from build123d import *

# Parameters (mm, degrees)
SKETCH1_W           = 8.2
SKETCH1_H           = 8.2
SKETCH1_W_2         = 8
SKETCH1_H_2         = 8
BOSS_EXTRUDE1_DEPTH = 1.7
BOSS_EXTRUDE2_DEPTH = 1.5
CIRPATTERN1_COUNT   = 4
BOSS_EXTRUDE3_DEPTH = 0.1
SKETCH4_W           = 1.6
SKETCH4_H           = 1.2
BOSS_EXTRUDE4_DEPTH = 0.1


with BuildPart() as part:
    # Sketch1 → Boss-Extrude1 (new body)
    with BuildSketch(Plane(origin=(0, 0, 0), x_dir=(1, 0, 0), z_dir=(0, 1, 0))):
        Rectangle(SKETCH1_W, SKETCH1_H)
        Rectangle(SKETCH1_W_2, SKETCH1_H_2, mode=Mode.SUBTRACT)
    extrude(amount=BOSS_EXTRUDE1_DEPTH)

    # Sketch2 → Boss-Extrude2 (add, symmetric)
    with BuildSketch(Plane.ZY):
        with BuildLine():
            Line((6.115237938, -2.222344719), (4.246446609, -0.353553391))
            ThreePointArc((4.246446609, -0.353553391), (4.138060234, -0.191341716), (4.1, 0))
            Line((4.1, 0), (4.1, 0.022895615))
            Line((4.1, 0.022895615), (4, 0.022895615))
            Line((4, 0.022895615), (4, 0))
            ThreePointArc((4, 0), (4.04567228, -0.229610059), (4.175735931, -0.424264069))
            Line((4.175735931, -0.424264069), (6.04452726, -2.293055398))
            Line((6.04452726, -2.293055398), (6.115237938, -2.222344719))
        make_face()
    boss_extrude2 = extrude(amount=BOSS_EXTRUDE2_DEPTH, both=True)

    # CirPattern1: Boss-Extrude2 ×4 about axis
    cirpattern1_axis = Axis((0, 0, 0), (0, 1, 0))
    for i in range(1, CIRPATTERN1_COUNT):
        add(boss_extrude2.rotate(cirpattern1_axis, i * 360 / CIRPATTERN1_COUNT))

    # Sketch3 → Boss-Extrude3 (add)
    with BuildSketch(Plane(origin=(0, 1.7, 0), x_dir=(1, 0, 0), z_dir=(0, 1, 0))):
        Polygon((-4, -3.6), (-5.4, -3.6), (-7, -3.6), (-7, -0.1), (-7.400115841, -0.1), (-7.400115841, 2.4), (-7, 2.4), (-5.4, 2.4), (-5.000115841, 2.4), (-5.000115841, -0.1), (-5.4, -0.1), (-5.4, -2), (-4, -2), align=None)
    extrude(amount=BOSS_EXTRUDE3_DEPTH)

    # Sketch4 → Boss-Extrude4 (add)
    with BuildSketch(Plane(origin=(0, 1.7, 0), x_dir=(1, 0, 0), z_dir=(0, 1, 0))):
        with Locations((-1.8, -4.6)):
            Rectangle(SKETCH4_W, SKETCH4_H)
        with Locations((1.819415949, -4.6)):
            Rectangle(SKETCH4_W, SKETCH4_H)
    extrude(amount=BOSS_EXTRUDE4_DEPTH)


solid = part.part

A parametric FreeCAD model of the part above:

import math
import FreeCAD as App
import Part
import Sketcher

V = App.Vector
Q = App.Units.Quantity

doc = App.newDocument("Part")
body = doc.addObject("PartDesign::Body", "Body")

sketch1 = body.newObject("Sketcher::SketchObject", "Sketch")
sketch1.AttachmentSupport = (doc.getObject("XZ_Plane"), [""])
sketch1.MapMode = "FlatFace"
sketch1.addGeometry(Part.LineSegment(V(-4, -4, 0), V(-4, 4, 0)), False)
sketch1.addGeometry(Part.LineSegment(V(-4, 4, 0), V(4, 4, 0)), False)
sketch1.addGeometry(Part.LineSegment(V(4, 4, 0), V(4, -4, 0)), False)
sketch1.addGeometry(Part.LineSegment(V(4, -4, 0), V(-4, -4, 0)), False)
sketch1.addGeometry(Part.LineSegment(V(4, 4, 0), V(-4, 4, 0)), False)
sketch1.addGeometry(Part.LineSegment(V(-4, 4, 0), V(-4, -4, 0)), False)
sketch1.addGeometry(Part.LineSegment(V(-4, -4, 0), V(4, -4, 0)), False)
sketch1.addGeometry(Part.LineSegment(V(4, -4, 0), V(4, 4, 0)), False)
sketch1.addConstraint(Sketcher.Constraint("Coincident", 0, 2, 1, 1))
sketch1.addConstraint(Sketcher.Constraint("Coincident", 1, 2, 2, 1))
sketch1.addConstraint(Sketcher.Constraint("Coincident", 2, 2, 3, 1))
sketch1.addConstraint(Sketcher.Constraint("Coincident", 3, 2, 0, 1))
sketch1.addConstraint(Sketcher.Constraint("Coincident", 4, 2, 5, 1))
sketch1.addConstraint(Sketcher.Constraint("Coincident", 5, 2, 6, 1))
sketch1.addConstraint(Sketcher.Constraint("Coincident", 6, 2, 7, 1))
sketch1.addConstraint(Sketcher.Constraint("Coincident", 7, 2, 4, 1))
sketch1.addConstraint(Sketcher.Constraint("Vertical", 0))
sketch1.addConstraint(Sketcher.Constraint("Horizontal", 1))
sketch1.addConstraint(Sketcher.Constraint("Vertical", 2))
sketch1.addConstraint(Sketcher.Constraint("Horizontal", 3))
sketch1.addConstraint(Sketcher.Constraint("Horizontal", 4))
sketch1.addConstraint(Sketcher.Constraint("Vertical", 5))
sketch1.addConstraint(Sketcher.Constraint("Horizontal", 6))
sketch1.addConstraint(Sketcher.Constraint("Vertical", 7))
sketch1.addConstraint(Sketcher.Constraint("Symmetric", 0, 2, 2, 2, -1, 1))
sketch1.addConstraint(Sketcher.Constraint("Symmetric", 4, 2, 6, 2, -1, 1))
sketch1.addConstraint(Sketcher.Constraint("Equal", 3, 0))
sketch1.addConstraint(Sketcher.Constraint("Equal", 6, 5))
sketch1.addConstraint(Sketcher.Constraint("DistanceX", 4, 2, 4, 1, Q("8 mm")))
sketch1.addConstraint(Sketcher.Constraint("DistanceX", 1, 1, 1, 2, Q("8.2 mm")))
pad1 = body.newObject("PartDesign::Pad", "Pad")
pad1.Profile = sketch1
pad1.Length = 1.7
pad1.Reversed = True

sketch2 = body.newObject("Sketcher::SketchObject", "Sketch001")
sketch2.AttachmentSupport = (doc.getObject("YZ_Plane"), [""])
sketch2.MapMode = "FlatFace"
sketch2.addGeometry(Part.LineSegment(V(-2.222, 6.115, 0), V(-0.354, 4.246, 0)), False)
sketch2.addGeometry(Part.ArcOfCircle(Part.Circle(V(0, 4.6, 0), V(0, 0, 1), 0.5), math.radians(-135), math.radians(-90)), False)
sketch2.addGeometry(Part.LineSegment(V(0, 4.1, 0), V(0.023, 4.1, 0)), False)
sketch2.addGeometry(Part.LineSegment(V(0.023, 4.1, 0), V(0.023, 4, 0)), False)
sketch2.addGeometry(Part.LineSegment(V(0.023, 4, 0), V(0, 4, 0)), False)
sketch2.addGeometry(Part.ArcOfCircle(Part.Circle(V(0, 4.6, 0), V(0, 0, 1), 0.6), math.radians(-135), math.radians(-90)), False)
sketch2.addGeometry(Part.LineSegment(V(-0.424, 4.176, 0), V(-2.293, 6.045, 0)), False)
sketch2.addGeometry(Part.LineSegment(V(-2.293, 6.045, 0), V(-2.222, 6.115, 0)), False)
sketch2.addConstraint(Sketcher.Constraint("Tangent", 0, 2, 1, 1))
sketch2.addConstraint(Sketcher.Constraint("Tangent", 1, 2, 2, 1))
sketch2.addConstraint(Sketcher.Constraint("Coincident", 2, 2, 3, 1))
sketch2.addConstraint(Sketcher.Constraint("Coincident", 3, 2, 4, 1))
sketch2.addConstraint(Sketcher.Constraint("Tangent", 4, 2, 5, 2))
sketch2.addConstraint(Sketcher.Constraint("Tangent", 5, 1, 6, 1))
sketch2.addConstraint(Sketcher.Constraint("Coincident", 6, 2, 7, 1))
sketch2.addConstraint(Sketcher.Constraint("Coincident", 7, 2, 0, 1))
sketch2.addConstraint(Sketcher.Constraint("Horizontal", 2))
sketch2.addConstraint(Sketcher.Constraint("Vertical", 3))
sketch2.addConstraint(Sketcher.Constraint("Horizontal", 4))
sketch2.addConstraint(Sketcher.Constraint("Coincident", 5, 3, 1, 3))
sketch2.addConstraint(Sketcher.Constraint("PointOnObject", 1, 3, -2))
sketch2.addConstraint(Sketcher.Constraint("Parallel", 0, 6))
sketch2.addConstraint(Sketcher.Constraint("Perpendicular", 6, 7))
sketch2.addConstraint(Sketcher.Constraint("Radius", 1, Q("0.5 mm")))
sketch2.addConstraint(Sketcher.Constraint("Radius", 5, Q("0.6 mm")))
sketch2.addConstraint(Sketcher.Constraint("Angle", 0, Q("-45 deg")))
sketch2.addConstraint(Sketcher.Constraint("DistanceY", -1, 1, 3, 2, Q("4 mm")))
sketch2.addConstraint(Sketcher.Constraint("Distance", 0, Q("2.64287 mm")))
sketch2.addConstraint(Sketcher.Constraint("DistanceX", 2, 1, 2, 2, Q("0.022896 mm")))
pad2 = body.newObject("PartDesign::Pad", "Pad001")
pad2.Profile = sketch2
pad2.Length = 3
pad2.Midplane = True
doc.recompute()

polarpattern = body.newObject("PartDesign::PolarPattern", "PolarPattern")
polarpattern.Originals = [pad2]
polarpattern.Axis = (doc.getObject("Y_Axis"), [""])
polarpattern.Angle = 360
polarpattern.Occurrences = 4
body.Tip = polarpattern

sketch3 = body.newObject("Sketcher::SketchObject", "Sketch002")
sketch3.AttachmentSupport = (doc.getObject("XZ_Plane"), [""])
sketch3.MapMode = "FlatFace"
sketch3.AttachmentOffset = App.Placement(V(0, 0, -1.7), App.Rotation())
sketch3.addGeometry(Part.LineSegment(V(-7, 3.6, 0), V(-4, 3.6, 0)), False)
sketch3.addGeometry(Part.LineSegment(V(-4, 3.6, 0), V(-4, 2, 0)), False)
sketch3.addGeometry(Part.LineSegment(V(-4, 2, 0), V(-5.4, 2, 0)), False)
sketch3.addGeometry(Part.LineSegment(V(-5.4, 2, 0), V(-5.4, 0.1, 0)), False)
sketch3.addGeometry(Part.LineSegment(V(-5.4, 0.1, 0), V(-5, 0.1, 0)), False)
sketch3.addGeometry(Part.LineSegment(V(-5, 0.1, 0), V(-5, -2.4, 0)), False)
sketch3.addGeometry(Part.LineSegment(V(-5, -2.4, 0), V(-7.4, -2.4, 0)), False)
sketch3.addGeometry(Part.LineSegment(V(-7.4, -2.4, 0), V(-7.4, 0.1, 0)), False)
sketch3.addGeometry(Part.LineSegment(V(-7.4, 0.1, 0), V(-7, 0.1, 0)), False)
sketch3.addGeometry(Part.LineSegment(V(-7, 0.1, 0), V(-7, 3.6, 0)), False)
sketch3.addConstraint(Sketcher.Constraint("Coincident", 0, 2, 1, 1))
sketch3.addConstraint(Sketcher.Constraint("Coincident", 1, 2, 2, 1))
sketch3.addConstraint(Sketcher.Constraint("Coincident", 2, 2, 3, 1))
sketch3.addConstraint(Sketcher.Constraint("Coincident", 3, 2, 4, 1))
sketch3.addConstraint(Sketcher.Constraint("Coincident", 4, 2, 5, 1))
sketch3.addConstraint(Sketcher.Constraint("Coincident", 5, 2, 6, 1))
sketch3.addConstraint(Sketcher.Constraint("Coincident", 6, 2, 7, 1))
sketch3.addConstraint(Sketcher.Constraint("Coincident", 7, 2, 8, 1))
sketch3.addConstraint(Sketcher.Constraint("Coincident", 8, 2, 9, 1))
sketch3.addConstraint(Sketcher.Constraint("Coincident", 9, 2, 0, 1))
sketch3.addConstraint(Sketcher.Constraint("Horizontal", 0))
sketch3.addConstraint(Sketcher.Constraint("Vertical", 1))
sketch3.addConstraint(Sketcher.Constraint("Horizontal", 2))
sketch3.addConstraint(Sketcher.Constraint("Vertical", 3))
sketch3.addConstraint(Sketcher.Constraint("Horizontal", 4))
sketch3.addConstraint(Sketcher.Constraint("Vertical", 5))
sketch3.addConstraint(Sketcher.Constraint("Horizontal", 6))
sketch3.addConstraint(Sketcher.Constraint("Vertical", 7))
sketch3.addConstraint(Sketcher.Constraint("Horizontal", 8))
sketch3.addConstraint(Sketcher.Constraint("Vertical", 9))
sketch3.addConstraint(Sketcher.Constraint("Horizontal", 4, 2, 7, 2))
sketch3.addConstraint(Sketcher.Constraint("DistanceX", 0, 1, 0, 2, Q("3 mm")))
sketch3.addConstraint(Sketcher.Constraint("DistanceX", 2, 2, 2, 1, Q("1.4 mm")))
sketch3.addConstraint(Sketcher.Constraint("DistanceX", 6, 2, 6, 1, Q("2.4 mm")))
sketch3.addConstraint(Sketcher.Constraint("DistanceY", 1, 2, 1, 1, Q("1.6 mm")))
sketch3.addConstraint(Sketcher.Constraint("DistanceY", 3, 2, 3, 1, Q("1.9 mm")))
sketch3.addConstraint(Sketcher.Constraint("DistanceY", 5, 2, 5, 1, Q("2.5 mm")))
sketch3.addConstraint(Sketcher.Constraint("DistanceX", 0, 2, -1, 1, Q("4 mm")))
sketch3.addConstraint(Sketcher.Constraint("DistanceY", -1, 1, 1, 2, Q("2 mm")))
sketch3.addConstraint(Sketcher.Constraint("DistanceX", 4, 1, 4, 2, Q("0.399884 mm")))
pad3 = body.newObject("PartDesign::Pad", "Pad002")
pad3.Profile = sketch3
pad3.Length = 0.1
pad3.Reversed = True

sketch4 = body.newObject("Sketcher::SketchObject", "Sketch003")
sketch4.AttachmentSupport = (doc.getObject("XZ_Plane"), [""])
sketch4.MapMode = "FlatFace"
sketch4.AttachmentOffset = App.Placement(V(0, 0, -1.7), App.Rotation())
sketch4.addGeometry(Part.LineSegment(V(-2.6, 4, 0), V(-2.6, 5.2, 0)), False)
sketch4.addGeometry(Part.LineSegment(V(-2.6, 5.2, 0), V(-1, 5.2, 0)), False)
sketch4.addGeometry(Part.LineSegment(V(-1, 5.2, 0), V(-1, 4, 0)), False)
sketch4.addGeometry(Part.LineSegment(V(-1, 4, 0), V(-2.6, 4, 0)), False)
sketch4.addGeometry(Part.LineSegment(V(1, 4, 0), V(1, 5.2, 0)), False)
sketch4.addGeometry(Part.LineSegment(V(1, 5.2, 0), V(2.6, 5.2, 0)), False)
sketch4.addGeometry(Part.LineSegment(V(2.6, 5.2, 0), V(2.6, 4, 0)), False)
sketch4.addGeometry(Part.LineSegment(V(2.6, 4, 0), V(1, 4, 0)), False)
sketch4.addConstraint(Sketcher.Constraint("Coincident", 0, 2, 1, 1))
sketch4.addConstraint(Sketcher.Constraint("Coincident", 1, 2, 2, 1))
sketch4.addConstraint(Sketcher.Constraint("Coincident", 2, 2, 3, 1))
sketch4.addConstraint(Sketcher.Constraint("Coincident", 3, 2, 0, 1))
sketch4.addConstraint(Sketcher.Constraint("Coincident", 4, 2, 5, 1))
sketch4.addConstraint(Sketcher.Constraint("Coincident", 5, 2, 6, 1))
sketch4.addConstraint(Sketcher.Constraint("Coincident", 6, 2, 7, 1))
sketch4.addConstraint(Sketcher.Constraint("Coincident", 7, 2, 4, 1))
sketch4.addConstraint(Sketcher.Constraint("Vertical", 0))
sketch4.addConstraint(Sketcher.Constraint("Horizontal", 1))
sketch4.addConstraint(Sketcher.Constraint("Vertical", 2))
sketch4.addConstraint(Sketcher.Constraint("Horizontal", 3))
sketch4.addConstraint(Sketcher.Constraint("Vertical", 4))
sketch4.addConstraint(Sketcher.Constraint("Horizontal", 5))
sketch4.addConstraint(Sketcher.Constraint("Vertical", 6))
sketch4.addConstraint(Sketcher.Constraint("Horizontal", 7))
sketch4.addConstraint(Sketcher.Constraint("Horizontal", 1, 2, 4, 2))
sketch4.addConstraint(Sketcher.Constraint("Horizontal", 3, 2, 6, 2))
sketch4.addConstraint(Sketcher.Constraint("Equal", 3, 5))
sketch4.addConstraint(Sketcher.Constraint("DistanceX", 1, 1, 1, 2, Q("1.6 mm")))
sketch4.addConstraint(Sketcher.Constraint("DistanceY", 0, 1, 0, 2, Q("1.2 mm")))
sketch4.addConstraint(Sketcher.Constraint("DistanceX", 1, 2, -1, 1, Q("1 mm")))
sketch4.addConstraint(Sketcher.Constraint("DistanceY", -1, 1, 2, 2, Q("4 mm")))
sketch4.addConstraint(Sketcher.Constraint("DistanceX", -1, 1, 4, 2, Q("1.019416 mm")))
pad4 = body.newObject("PartDesign::Pad", "Pad003")
pad4.Profile = sketch4
pad4.Length = 0.1
pad4.Reversed = True

doc.recompute()
